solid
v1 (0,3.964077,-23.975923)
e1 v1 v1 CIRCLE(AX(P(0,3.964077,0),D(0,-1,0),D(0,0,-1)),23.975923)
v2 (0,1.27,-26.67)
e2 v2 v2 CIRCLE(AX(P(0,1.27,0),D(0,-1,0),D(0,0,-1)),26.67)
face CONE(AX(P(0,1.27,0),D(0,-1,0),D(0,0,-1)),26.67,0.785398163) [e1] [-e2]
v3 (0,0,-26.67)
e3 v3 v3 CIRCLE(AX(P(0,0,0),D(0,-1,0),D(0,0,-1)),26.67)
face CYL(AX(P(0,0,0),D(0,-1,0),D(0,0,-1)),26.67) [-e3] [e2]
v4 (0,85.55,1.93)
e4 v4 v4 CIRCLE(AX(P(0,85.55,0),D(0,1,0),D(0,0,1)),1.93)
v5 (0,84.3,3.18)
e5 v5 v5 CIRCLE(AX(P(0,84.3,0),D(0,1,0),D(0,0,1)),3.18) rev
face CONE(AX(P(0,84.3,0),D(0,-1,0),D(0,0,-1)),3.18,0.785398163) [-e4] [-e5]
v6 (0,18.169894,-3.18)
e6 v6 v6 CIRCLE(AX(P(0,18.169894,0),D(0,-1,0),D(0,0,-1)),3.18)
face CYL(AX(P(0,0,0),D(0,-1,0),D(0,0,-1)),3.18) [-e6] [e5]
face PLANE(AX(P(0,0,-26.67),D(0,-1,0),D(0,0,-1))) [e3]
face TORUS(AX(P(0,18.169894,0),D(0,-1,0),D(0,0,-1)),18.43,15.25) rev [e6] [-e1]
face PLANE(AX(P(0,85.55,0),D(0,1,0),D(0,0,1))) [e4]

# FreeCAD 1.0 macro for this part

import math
import FreeCAD as App
import Part
import Sketcher
Q = App.Units.Quantity


def edges_at(feature, points):
    """Names of the edges that pass closest to the given points."""
    edges = feature.Shape.Edges
    near = lambda p: min(range(len(edges)), key=lambda i: edges[i].distToShape(Part.Vertex(*p))[0])
    return sorted({f"Edge{near(p) + 1}" for p in points})

doc = App.newDocument("Part")
params = doc.addObject("Spreadsheet::Sheet", "Params")
for row, (alias, value) in enumerate([
    ("sketch1_width", "0.05 in"),
    ("sketch1_height", "1.05 in"),
    ("sketch1_length", "0.15 in"),
    ("revolution_angle", "360 deg"),
    ("chamfer_size", "1.25 mm"),
], start=1):
    params.set(f"A{row}", alias)
    params.set(f"B{row}", "=" + value)
    params.setAlias(f"B{row}", alias)

body = doc.addObject("PartDesign::Body", "Body")

# Sketch on YZ plane
sketch1 = body.newObject("Sketcher::SketchObject", "Sketch")
sketch1.AttachmentSupport = (doc.getObject("YZ_Plane"), [""])
sketch1.MapMode = "FlatFace"
sketch1.addGeometry([
    Part.LineSegment(App.Vector(85.5, 0, 0), App.Vector(0, 0, 0)),  # 0
    Part.LineSegment(App.Vector(0, 0, 0), App.Vector(0, -26.7, 0)),  # 1
    Part.LineSegment(App.Vector(0, -26.7, 0), App.Vector(1.3, -26.7, 0)),  # 2
    Part.LineSegment(App.Vector(1.3, -26.7, 0), App.Vector(4, -24, 0)),  # 3
    Part.ArcOfCircle(Part.Circle(App.Vector(18.2, -18.4, 0), App.Vector(0, 0, 1), 15.2), math.radians(90), math.radians(201)),  # 4
    Part.LineSegment(App.Vector(18.2, -3.2, 0), App.Vector(85.5, -3.2, 0)),  # 5
    Part.LineSegment(App.Vector(85.5, -3.2, 0), App.Vector(85.5, 0, 0)),  # 6
], False)
sketch1.addConstraint([
    Sketcher.Constraint("Coincident", 0, 2, 1, 1),
    Sketcher.Constraint("Coincident", 1, 2, 2, 1),
    Sketcher.Constraint("Coincident", 2, 2, 3, 1),
    Sketcher.Constraint("Coincident", 3, 2, 4, 2),
    Sketcher.Constraint("Tangent", 4, 1, 5, 1),
    Sketcher.Constraint("Coincident", 5, 2, 6, 1),
    Sketcher.Constraint("Coincident", 6, 2, 0, 1),
    Sketcher.Constraint("Horizontal", 0),
    Sketcher.Constraint("Vertical", 1),
    Sketcher.Constraint("Horizontal", 2),
    Sketcher.Constraint("Horizontal", 5),
    Sketcher.Constraint("Vertical", 6),
    Sketcher.Constraint("Coincident", 0, 2, -1, 1),
    Sketcher.Constraint("Angle", 3, Q("45 deg")),
    Sketcher.Constraint("DistanceX", 2, 1, 2, 2, Q("0.05 in")),
    Sketcher.Constraint("DistanceY", 1, 2, 1, 1, Q("1.05 in")),
    Sketcher.Constraint("Distance", 3, Q("0.15 in")),
    Sketcher.Constraint("Radius", 4, Q("15.25 mm")),
    Sketcher.Constraint("DistanceX", 0, 2, 0, 1, Q("85.55 mm")),
    Sketcher.Constraint("DistanceY", 6, 1, 6, 2, Q("3.18 mm")),
])
sketch1.setExpression("Constraints[14]", "Params.sketch1_width")
sketch1.setExpression("Constraints[15]", "Params.sketch1_height")
sketch1.setExpression("Constraints[16]", "Params.sketch1_length")
revolution = body.newObject("PartDesign::Revolution", "Revolution")
revolution.Profile = sketch1
revolution.ReferenceAxis = (sketch1, ["H_Axis"])
revolution.setExpression("Angle", "Params.revolution_angle")
doc.recompute()

chamfer = body.newObject("PartDesign::Chamfer", "Chamfer")
chamfer.Base = (revolution, edges_at(revolution, [(0, 85.55, 3.18)]))
chamfer.setExpression("Size", "Params.chamfer_size")

doc.recompute()
